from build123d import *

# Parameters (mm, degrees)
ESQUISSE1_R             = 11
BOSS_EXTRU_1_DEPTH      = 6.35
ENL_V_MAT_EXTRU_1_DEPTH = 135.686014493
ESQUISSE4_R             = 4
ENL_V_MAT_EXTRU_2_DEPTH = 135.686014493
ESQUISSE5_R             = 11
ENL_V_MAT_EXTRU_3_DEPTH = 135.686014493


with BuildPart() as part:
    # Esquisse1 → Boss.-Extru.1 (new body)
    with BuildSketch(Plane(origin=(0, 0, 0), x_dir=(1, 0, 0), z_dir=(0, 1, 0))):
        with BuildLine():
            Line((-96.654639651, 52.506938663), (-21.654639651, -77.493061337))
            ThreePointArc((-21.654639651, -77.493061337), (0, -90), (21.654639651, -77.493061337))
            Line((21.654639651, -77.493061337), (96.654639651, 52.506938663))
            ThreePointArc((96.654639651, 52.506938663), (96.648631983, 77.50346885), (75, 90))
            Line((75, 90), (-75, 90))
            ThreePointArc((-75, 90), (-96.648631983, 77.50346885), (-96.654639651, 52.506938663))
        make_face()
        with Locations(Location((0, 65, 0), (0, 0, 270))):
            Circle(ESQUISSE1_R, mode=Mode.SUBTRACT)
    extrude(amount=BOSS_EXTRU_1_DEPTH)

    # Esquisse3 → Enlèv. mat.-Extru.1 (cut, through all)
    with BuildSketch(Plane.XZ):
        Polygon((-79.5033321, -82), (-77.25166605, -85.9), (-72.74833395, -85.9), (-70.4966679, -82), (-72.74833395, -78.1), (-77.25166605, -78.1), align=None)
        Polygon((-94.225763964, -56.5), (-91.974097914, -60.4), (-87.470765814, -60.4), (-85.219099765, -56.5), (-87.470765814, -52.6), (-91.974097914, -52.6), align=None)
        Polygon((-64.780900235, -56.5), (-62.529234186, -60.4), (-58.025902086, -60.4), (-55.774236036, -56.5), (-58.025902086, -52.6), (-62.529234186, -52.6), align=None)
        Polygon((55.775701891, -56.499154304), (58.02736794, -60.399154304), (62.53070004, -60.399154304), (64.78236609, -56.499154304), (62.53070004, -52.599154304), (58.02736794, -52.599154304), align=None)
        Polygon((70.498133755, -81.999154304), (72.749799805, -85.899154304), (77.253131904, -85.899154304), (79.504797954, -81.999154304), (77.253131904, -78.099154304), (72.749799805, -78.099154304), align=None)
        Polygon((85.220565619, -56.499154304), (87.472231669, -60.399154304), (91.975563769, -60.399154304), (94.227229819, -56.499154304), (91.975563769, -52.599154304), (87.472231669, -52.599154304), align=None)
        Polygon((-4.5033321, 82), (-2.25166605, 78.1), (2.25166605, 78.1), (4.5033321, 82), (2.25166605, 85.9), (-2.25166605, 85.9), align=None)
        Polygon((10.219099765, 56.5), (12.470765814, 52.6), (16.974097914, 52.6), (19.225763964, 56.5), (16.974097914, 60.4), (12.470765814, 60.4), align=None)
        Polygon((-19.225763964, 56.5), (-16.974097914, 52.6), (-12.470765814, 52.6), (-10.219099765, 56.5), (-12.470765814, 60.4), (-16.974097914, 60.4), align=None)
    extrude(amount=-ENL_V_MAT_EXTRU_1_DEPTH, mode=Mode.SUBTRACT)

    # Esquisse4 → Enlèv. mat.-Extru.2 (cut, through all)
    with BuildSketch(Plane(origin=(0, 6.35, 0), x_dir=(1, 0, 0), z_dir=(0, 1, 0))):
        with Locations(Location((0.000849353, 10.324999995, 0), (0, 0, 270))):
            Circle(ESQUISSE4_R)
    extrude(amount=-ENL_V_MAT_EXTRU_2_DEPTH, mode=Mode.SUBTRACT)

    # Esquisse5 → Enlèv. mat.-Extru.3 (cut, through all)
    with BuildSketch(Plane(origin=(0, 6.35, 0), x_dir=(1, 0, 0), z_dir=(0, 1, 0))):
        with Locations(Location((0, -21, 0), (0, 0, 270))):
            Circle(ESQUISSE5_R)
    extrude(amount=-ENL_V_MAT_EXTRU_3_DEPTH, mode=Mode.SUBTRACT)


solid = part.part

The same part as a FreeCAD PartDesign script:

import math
import FreeCAD as App
import Part
import Sketcher
Q = App.Units.Quantity

doc = App.newDocument("Part")
body = doc.addObject("PartDesign::Body", "Body")

# Sketch on XZ plane
sketch1 = doc.addObject("Sketcher::SketchObject", "Sketch")
body.addObject(sketch1)
sketch1.AttachmentSupport = (doc.XZ_Plane, [""])
sketch1.MapMode = "FlatFace"
sketch1.addGeometry([
    Part.LineSegment(App.Vector(-96.65464, -52.506939, 0), App.Vector(-21.65464, 77.493061, 0)),  # 0
    Part.ArcOfCircle(Part.Circle(App.Vector(0, 65, 0), App.Vector(0, 0, 1), 25), math.radians(29.981639), math.radians(150.018361)),  # 1
    Part.LineSegment(App.Vector(21.65464, 77.493061, 0), App.Vector(96.65464, -52.506939, 0)),  # 2
    Part.ArcOfCircle(Part.Circle(App.Vector(75, -65, 0), App.Vector(0, 0, 1), 25), math.radians(-90), math.radians(29.981639)),  # 3
    Part.LineSegment(App.Vector(75, -90, 0), App.Vector(-75, -90, 0)),  # 4
    Part.ArcOfCircle(Part.Circle(App.Vector(-75, -65, 0), App.Vector(0, 0, 1), 25), math.radians(150.018361), math.radians(270)),  # 5
    Part.Circle(App.Vector(0, -65, 0), App.Vector(0, 0, 1), 11),  # 6
], False)
sketch1.addConstraint([
    Sketcher.Constraint("Tangent", 0, 2, 1, 2),
    Sketcher.Constraint("Tangent", 1, 1, 2, 1),
    Sketcher.Constraint("Tangent", 2, 2, 3, 2),
    Sketcher.Constraint("Tangent", 3, 1, 4, 1),
    Sketcher.Constraint("Tangent", 4, 2, 5, 2),
    Sketcher.Constraint("Tangent", 5, 1, 0, 1),
    Sketcher.Constraint("Horizontal", 4),
    Sketcher.Constraint("Equal", 1, 3),
    Sketcher.Constraint("Equal", 3, 5),
    Sketcher.Constraint("Symmetric", 1, 3, 6, 3, -1, 1),
    Sketcher.Constraint("Symmetric", 0, 2, 1, 1, -2),
    Sketcher.Constraint("Horizontal", 5, 3, 6, 3),
    Sketcher.Constraint("Diameter", 6, Q("22 mm")),
    Sketcher.Constraint("Radius", 1, Q("25 mm")),
    Sketcher.Constraint("DistanceX", 4, 2, 4, 1, Q("150 mm")),
    Sketcher.Constraint("DistanceY", -1, 1, 1, 3, Q("65 mm")),
])
pad1 = doc.addObject("PartDesign::Pad", "Pad")
body.addObject(pad1)
pad1.Profile = sketch1
pad1.Length = 6.35
pad1.Reversed = True

# Sketch on XZ plane
sketch2 = doc.addObject("Sketcher::SketchObject", "Sketch001")
body.addObject(sketch2)
sketch2.AttachmentSupport = (doc.XZ_Plane, [""])
sketch2.MapMode = "FlatFace"
sketch2.addGeometry([
    Part.LineSegment(App.Vector(-79.503332, -82, 0), App.Vector(-77.251666, -85.9, 0)),  # 0
    Part.LineSegment(App.Vector(-77.251666, -85.9, 0), App.Vector(-72.748334, -85.9, 0)),  # 1
    Part.LineSegment(App.Vector(-72.748334, -85.9, 0), App.Vector(-70.496668, -82, 0)),  # 2
    Part.LineSegment(App.Vector(-70.496668, -82, 0), App.Vector(-72.748334, -78.1, 0)),  # 3
    Part.LineSegment(App.Vector(-72.748334, -78.1, 0), App.Vector(-77.251666, -78.1, 0)),  # 4
    Part.LineSegment(App.Vector(-77.251666, -78.1, 0), App.Vector(-79.503332, -82, 0)),  # 5
    Part.LineSegment(App.Vector(-94.225764, -56.5, 0), App.Vector(-91.974098, -60.4, 0)),  # 6
    Part.LineSegment(App.Vector(-91.974098, -60.4, 0), App.Vector(-87.470766, -60.4, 0)),  # 7
    Part.LineSegment(App.Vector(-87.470766, -60.4, 0), App.Vector(-85.2191, -56.5, 0)),  # 8
    Part.LineSegment(App.Vector(-85.2191, -56.5, 0), App.Vector(-87.470766, -52.6, 0)),  # 9
    Part.LineSegment(App.Vector(-87.470766, -52.6, 0), App.Vector(-91.974098, -52.6, 0)),  # 10
    Part.LineSegment(App.Vector(-91.974098, -52.6, 0), App.Vector(-94.225764, -56.5, 0)),  # 11
    Part.LineSegment(App.Vector(-64.7809, -56.5, 0), App.Vector(-62.529234, -60.4, 0)),  # 12
    Part.LineSegment(App.Vector(-62.529234, -60.4, 0), App.Vector(-58.025902, -60.4, 0)),  # 13
    Part.LineSegment(App.Vector(-58.025902, -60.4, 0), App.Vector(-55.774236, -56.5, 0)),  # 14
    Part.LineSegment(App.Vector(-55.774236, -56.5, 0), App.Vector(-58.025902, -52.6, 0)),  # 15
    Part.LineSegment(App.Vector(-58.025902, -52.6, 0), App.Vector(-62.529234, -52.6, 0)),  # 16
    Part.LineSegment(App.Vector(-62.529234, -52.6, 0), App.Vector(-64.7809, -56.5, 0)),  # 17
    Part.LineSegment(App.Vector(55.775702, -56.499154, 0), App.Vector(58.027368, -60.399154, 0)),  # 18
    Part.LineSegment(App.Vector(58.027368, -60.399154, 0), App.Vector(62.5307, -60.399154, 0)),  # 19
    Part.LineSegment(App.Vector(62.5307, -60.399154, 0), App.Vector(64.782366, -56.499154, 0)),  # 20
    Part.LineSegment(App.Vector(64.782366, -56.499154, 0), App.Vector(62.5307, -52.599154, 0)),  # 21
    Part.LineSegment(App.Vector(62.5307, -52.599154, 0), App.Vector(58.027368, -52.599154, 0)),  # 22
    Part.LineSegment(App.Vector(58.027368, -52.599154, 0), App.Vector(55.775702, -56.499154, 0)),  # 23
    Part.LineSegment(App.Vector(70.498134, -81.999154, 0), App.Vector(72.7498, -85.899154, 0)),  # 24
    Part.LineSegment(App.Vector(72.7498, -85.899154, 0), App.Vector(77.253132, -85.899154, 0)),  # 25
    Part.LineSegment(App.Vector(77.253132, -85.899154, 0), App.Vector(79.504798, -81.999154, 0)),  # 26
    Part.LineSegment(App.Vector(79.504798, -81.999154, 0), App.Vector(77.253132, -78.099154, 0)),  # 27
    Part.LineSegment(App.Vector(77.253132, -78.099154, 0), App.Vector(72.7498, -78.099154, 0)),  # 28
    Part.LineSegment(App.Vector(72.7498, -78.099154, 0), App.Vector(70.498134, -81.999154, 0)),  # 29
    Part.LineSegment(App.Vector(85.220566, -56.499154, 0), App.Vector(87.472232, -60.399154, 0)),  # 30
    Part.LineSegment(App.Vector(87.472232, -60.399154, 0), App.Vector(91.975564, -60.399154, 0)),  # 31
    Part.LineSegment(App.Vector(91.975564, -60.399154, 0), App.Vector(94.22723, -56.499154, 0)),  # 32
    Part.LineSegment(App.Vector(94.22723, -56.499154, 0), App.Vector(91.975564, -52.599154, 0)),  # 33
    Part.LineSegment(App.Vector(91.975564, -52.599154, 0), App.Vector(87.472232, -52.599154, 0)),  # 34
    Part.LineSegment(App.Vector(87.472232, -52.599154, 0), App.Vector(85.220566, -56.499154, 0)),  # 35
    Part.LineSegment(App.Vector(-4.503332, 82, 0), App.Vector(-2.251666, 78.1, 0)),  # 36
    Part.LineSegment(App.Vector(-2.251666, 78.1, 0), App.Vector(2.251666, 78.1, 0)),  # 37
    Part.LineSegment(App.Vector(2.251666, 78.1, 0), App.Vector(4.503332, 82, 0)),  # 38
    Part.LineSegment(App.Vector(4.503332, 82, 0), App.Vector(2.251666, 85.9, 0)),  # 39
    Part.LineSegment(App.Vector(2.251666, 85.9, 0), App.Vector(-2.251666, 85.9, 0)),  # 40
    Part.LineSegment(App.Vector(-2.251666, 85.9, 0), App.Vector(-4.503332, 82, 0)),  # 41
    Part.LineSegment(App.Vector(10.2191, 56.5, 0), App.Vector(12.470766, 52.6, 0)),  # 42
    Part.LineSegment(App.Vector(12.470766, 52.6, 0), App.Vector(16.974098, 52.6, 0)),  # 43
    Part.LineSegment(App.Vector(16.974098, 52.6, 0), App.Vector(19.225764, 56.5, 0)),  # 44
    Part.LineSegment(App.Vector(19.225764, 56.5, 0), App.Vector(16.974098, 60.4, 0)),  # 45
    Part.LineSegment(App.Vector(16.974098, 60.4, 0), App.Vector(12.470766, 60.4, 0)),  # 46
    Part.LineSegment(App.Vector(12.470766, 60.4, 0), App.Vector(10.2191, 56.5, 0)),  # 47
    Part.LineSegment(App.Vector(-19.225764, 56.5, 0), App.Vector(-16.974098, 52.6, 0)),  # 48
    Part.LineSegment(App.Vector(-16.974098, 52.6, 0), App.Vector(-12.470766, 52.6, 0)),  # 49
    Part.LineSegment(App.Vector(-12.470766, 52.6, 0), App.Vector(-10.2191, 56.5, 0)),  # 50
    Part.LineSegment(App.Vector(-10.2191, 56.5, 0), App.Vector(-12.470766, 60.4, 0)),  # 51
    Part.LineSegment(App.Vector(-12.470766, 60.4, 0), App.Vector(-16.974098, 60.4, 0)),  # 52
    Part.LineSegment(App.Vector(-16.974098, 60.4, 0), App.Vector(-19.225764, 56.5, 0)),  # 53
], False)
sketch2.addConstraint([
    Sketcher.Constraint("Coincident", 0, 2, 1, 1),
    Sketcher.Constraint("Coincident", 1, 2, 2, 1),
    Sketcher.Constraint("Coincident", 2, 2, 3, 1),
    Sketcher.Constraint("Coincident", 3, 2, 4, 1),
    Sketcher.Constraint("Coincident", 4, 2, 5, 1),
    Sketcher.Constraint("Coincident", 5, 2, 0, 1),
    Sketcher.Constraint("Coincident", 6, 2, 7, 1),
    Sketcher.Constraint("Coincident", 7, 2, 8, 1),
    Sketcher.Constraint("Coincident", 8, 2, 9, 1),
    Sketcher.Constraint("Coincident", 9, 2, 10, 1),
    Sketcher.Constraint("Coincident", 10, 2, 11, 1),
    Sketcher.Constraint("Coincident", 11, 2, 6, 1),
    Sketcher.Constraint("Coincident", 12, 2, 13, 1),
    Sketcher.Constraint("Coincident", 13, 2, 14, 1),
    Sketcher.Constraint("Coincident", 14, 2, 15, 1),
    Sketcher.Constraint("Coincident", 15, 2, 16, 1),
    Sketcher.Constraint("Coincident", 16, 2, 17, 1),
    Sketcher.Constraint("Coincident", 17, 2, 12, 1),
    Sketcher.Constraint("Coincident", 18, 2, 19, 1),
    Sketcher.Constraint("Coincident", 19, 2, 20, 1),
    Sketcher.Constraint("Coincident", 20, 2, 21, 1),
    Sketcher.Constraint("Coincident", 21, 2, 22, 1),
    Sketcher.Constraint("Coincident", 22, 2, 23, 1),
    Sketcher.Constraint("Coincident", 23, 2, 18, 1),
    Sketcher.Constraint("Coincident", 24, 2, 25, 1),
    Sketcher.Constraint("Coincident", 25, 2, 26, 1),
    Sketcher.Constraint("Coincident", 26, 2, 27, 1),
    Sketcher.Constraint("Coincident", 27, 2, 28, 1),
    Sketcher.Constraint("Coincident", 28, 2, 29, 1),
    Sketcher.Constraint("Coincident", 29, 2, 24, 1),
    Sketcher.Constraint("Coincident", 30, 2, 31, 1),
    Sketcher.Constraint("Coincident", 31, 2, 32, 1),
    Sketcher.Constraint("Coincident", 32, 2, 33, 1),
    Sketcher.Constraint("Coincident", 33, 2, 34, 1),
    Sketcher.Constraint("Coincident", 34, 2, 35, 1),
    Sketcher.Constraint("Coincident", 35, 2, 30, 1),
    Sketcher.Constraint("Coincident", 36, 2, 37, 1),
    Sketcher.Constraint("Coincident", 37, 2, 38, 1),
    Sketcher.Constraint("Coincident", 38, 2, 39, 1),
    Sketcher.Constraint("Coincident", 39, 2, 40, 1),
    Sketcher.Constraint("Coincident", 40, 2, 41, 1),
    Sketcher.Constraint("Coincident", 41, 2, 36, 1),
    Sketcher.Constraint("Coincident", 42, 2, 43, 1),
    Sketcher.Constraint("Coincident", 43, 2, 44, 1),
    Sketcher.Constraint("Coincident", 44, 2, 45, 1),
    Sketcher.Constraint("Coincident", 45, 2, 46, 1),
    Sketcher.Constraint("Coincident", 46, 2, 47, 1),
    Sketcher.Constraint("Coincident", 47, 2, 42, 1),
    Sketcher.Constraint("Coincident", 48, 2, 49, 1),
    Sketcher.Constraint("Coincident", 49, 2, 50, 1),
    Sketcher.Constraint("Coincident", 50, 2, 51, 1),
    Sketcher.Constraint("Coincident", 51, 2, 52, 1),
    Sketcher.Constraint("Coincident", 52, 2, 53, 1),
    Sketcher.Constraint("Coincident", 53, 2, 48, 1),
    Sketcher.Constraint("Horizontal", 1),
    Sketcher.Constraint("Horizontal", 4),
    Sketcher.Constraint("Horizontal", 7),
    Sketcher.Constraint("Horizontal", 10),
    Sketcher.Constraint("Horizontal", 13),
    Sketcher.Constraint("Horizontal", 16),
    Sketcher.Constraint("Horizontal", 19),
    Sketcher.Constraint("Horizontal", 22),
    Sketcher.Constraint("Horizontal", 25),
    Sketcher.Constraint("Horizontal", 28),
    Sketcher.Constraint("Horizontal", 31),
    Sketcher.Constraint("Horizontal", 34),
    Sketcher.Constraint("Horizontal", 37),
    Sketcher.Constraint("Horizontal", 40),
    Sketcher.Constraint("Horizontal", 43),
    Sketcher.Constraint("Horizontal", 46),
    Sketcher.Constraint("Horizontal", 49),
    Sketcher.Constraint("Horizontal", 52),
    Sketcher.Constraint("Symmetric", 38, 2, 41, 2, -2),
    Sketcher.Constraint("Symmetric", 43, 2, 48, 2, -2),
    Sketcher.Constraint("Symmetric", 47, 2, 50, 2, -2),
    Sketcher.Constraint("Symmetric", 46, 2, 51, 2, -2),
    Sketcher.Constraint("Symmetric", 44, 2, 53, 2, -2),
    Sketcher.Constraint("Parallel", 0, 3),
    Sketcher.Constraint("Parallel", 2, 5),
    Sketcher.Constraint("Parallel", 3, 6),
    Sketcher.Constraint("Parallel", 5, 8),
    Sketcher.Constraint("Parallel", 6, 9),
    Sketcher.Constraint("Parallel", 8, 11),
    Sketcher.Constraint("Parallel", 9, 12),
    Sketcher.Constraint("Parallel", 11, 14),
    Sketcher.Constraint("Parallel", 12, 15),
    Sketcher.Constraint("Parallel", 14, 17),
    Sketcher.Constraint("Parallel", 15, 18),
    Sketcher.Constraint("Parallel", 17, 20),
    Sketcher.Constraint("Parallel", 18, 21),
    Sketcher.Constraint("Parallel", 20, 23),
    Sketcher.Constraint("Parallel", 21, 24),
    Sketcher.Constraint("Parallel", 23, 26),
    Sketcher.Constraint("Parallel", 24, 27),
    Sketcher.Constraint("Parallel", 26, 29),
    Sketcher.Constraint("Parallel", 27, 30),
    Sketcher.Constraint("Parallel", 29, 32),
    Sketcher.Constraint("Parallel", 30, 33),
    Sketcher.Constraint("Parallel", 32, 35),
    Sketcher.Constraint("Parallel", 33, 36),
    Sketcher.Constraint("Parallel", 35, 38),
    Sketcher.Constraint("Parallel", 36, 39),
    Sketcher.Constraint("Parallel", 38, 41),
    Sketcher.Constraint("Parallel", 39, 42),
    Sketcher.Constraint("Parallel", 41, 44),
    Sketcher.Constraint("Parallel", 42, 45),
    Sketcher.Constraint("Parallel", 44, 47),
    Sketcher.Constraint("Parallel", 45, 48),
    Sketcher.Constraint("Parallel", 47, 50),
    Sketcher.Constraint("Parallel", 50, 53),
    Sketcher.Constraint("Horizontal", 2, 2, 5, 2),
    Sketcher.Constraint("Horizontal", 8, 2, 11, 2),
    Sketcher.Constraint("Horizontal", 7, 2, 12, 2),
    Sketcher.Constraint("Horizontal", 11, 2, 14, 2),
    Sketcher.Constraint("Horizontal", 10, 2, 15, 2),
    Sketcher.Constraint("Horizontal", 14, 2, 17, 2),
    Sketcher.Constraint("Horizontal", 20, 2, 23, 2),
    Sketcher.Constraint("Horizontal", 26, 2, 29, 2),
    Sketcher.Constraint("Horizontal", 19, 2, 30, 2),
    Sketcher.Constraint("Horizontal", 23, 2, 32, 2),
    Sketcher.Constraint("Horizontal", 22, 2, 33, 2),
    Sketcher.Constraint("Horizontal", 32, 2, 35, 2),
    Sketcher.Constraint("Horizontal", 44, 2, 47, 2),
    Sketcher.Constraint("Vertical", 1, 2, 3, 2),
    Sketcher.Constraint("Vertical", 7, 2, 9, 2),
    Sketcher.Constraint("Vertical", 19, 2, 21, 2),
    Sketcher.Constraint("Vertical", 25, 2, 27, 2),
    Sketcher.Constraint("Vertical", 37, 2, 39, 2),
    Sketcher.Constraint("Vertical", 43, 2, 45, 2),
    Sketcher.Constraint("Equal", 4, 7),
    Sketcher.Constraint("Equal", 10, 13),
    Sketcher.Constraint("Equal", 16, 19),
    Sketcher.Constraint("Equal", 22, 25),
    Sketcher.Constraint("Equal", 28, 31),
    Sketcher.Constraint("Equal", 34, 37),
    Sketcher.Constraint("Equal", 40, 43),
    Sketcher.Constraint("Equal", 5, 6),
    Sketcher.Constraint("Equal", 17, 18),
    Sketcher.Constraint("Equal", 23, 24),
    Sketcher.Constraint("Equal", 35, 36),
    Sketcher.Constraint("Equal", 41, 42),
    Sketcher.Constraint("Angle", 0, Q("-60 deg")),
    Sketcher.Constraint("DistanceY", 2, 2, -1, 1, Q("82 mm")),
    Sketcher.Constraint("DistanceY", -1, 1, 38, 2, Q("82 mm")),
    Sketcher.Constraint("DistanceY", 0, 2, -1, 1, Q("85.9 mm")),
    Sketcher.Constraint("DistanceY", 6, 2, -1, 1, Q("60.4 mm")),
    Sketcher.Constraint("DistanceY", -1, 1, 42, 2, Q("52.6 mm")),
    Sketcher.Constraint("DistanceY", 24, 2, 19, 2, Q("25.5 mm")),
    Sketcher.Constraint("DistanceX", 0, 2, 2, 2, Q("6.754998 mm")),
    Sketcher.Constraint("DistanceX", 8, 2, -1, 1, Q("85.2191 mm")),
    Sketcher.Constraint("DistanceX", 17, 2, -1, 1, Q("64.7809 mm")),
    Sketcher.Constraint("DistanceX", -1, 1, 19, 2, Q("62.5307 mm")),
    Sketcher.Constraint("DistanceX", -1, 1, 24, 2, Q("72.7498 mm")),
    Sketcher.Constraint("DistanceX", -1, 1, 47, 2, Q("10.2191 mm")),
    Sketcher.Constraint("DistanceX", 7, 2, 4, 2, Q("10.2191 mm")),
    Sketcher.Constraint("DistanceX", 27, 2, 30, 2, Q("10.2191 mm")),
    Sketcher.Constraint("DistanceY", 18, 2, -1, 1, Q("60.399154 mm")),
])
pocket1 = doc.addObject("PartDesign::Pocket", "Pocket")
body.addObject(pocket1)
pocket1.Profile = sketch2
pocket1.Type = "ThroughAll"

# Sketch on XZ plane
sketch3 = doc.addObject("Sketcher::SketchObject", "Sketch002")
body.addObject(sketch3)
sketch3.AttachmentSupport = (doc.XZ_Plane, [""])
sketch3.MapMode = "FlatFace"
sketch3.AttachmentOffset = App.Placement(App.Vector(0, 0, -6.35), App.Rotation())
sketch3.addGeometry(Part.Circle(App.Vector(0.000849, -10.325, 0), App.Vector(0, 0, 1), 4), False)
sketch3.addConstraint([
    Sketcher.Constraint("Diameter", 0, Q("8 mm")),
    Sketcher.Constraint("DistanceY", 0, 3, -1, 1, Q("10.325 mm")),
    Sketcher.Constraint("DistanceX", -1, 1, 0, 3, Q("0.000849 mm")),
])
pocket2 = doc.addObject("PartDesign::Pocket", "Pocket001")
body.addObject(pocket2)
pocket2.Profile = sketch3
pocket2.Type = "ThroughAll"
pocket2.Reversed = True

# Sketch on XZ plane
sketch4 = doc.addObject("Sketcher::SketchObject", "Sketch003")
body.addObject(sketch4)
sketch4.AttachmentSupport = (doc.XZ_Plane, [""])
sketch4.MapMode = "FlatFace"
sketch4.AttachmentOffset = App.Placement(App.Vector(0, 0, -6.35), App.Rotation())
sketch4.addGeometry(Part.Circle(App.Vector(0, 21, 0), App.Vector(0, 0, 1), 11), False)
sketch4.addConstraint([
    Sketcher.Constraint("PointOnObject", 0, 3, -2),
    Sketcher.Constraint("Diameter", 0, Q("22 mm")),
    Sketcher.Constraint("DistanceY", -1, 1, 0, 3, Q("21 mm")),
])
pocket3 = doc.addObject("PartDesign::Pocket", "Pocket002")
body.addObject(pocket3)
pocket3.Profile = sketch4
pocket3.Type = "ThroughAll"
pocket3.Reversed = True

doc.recompute()
